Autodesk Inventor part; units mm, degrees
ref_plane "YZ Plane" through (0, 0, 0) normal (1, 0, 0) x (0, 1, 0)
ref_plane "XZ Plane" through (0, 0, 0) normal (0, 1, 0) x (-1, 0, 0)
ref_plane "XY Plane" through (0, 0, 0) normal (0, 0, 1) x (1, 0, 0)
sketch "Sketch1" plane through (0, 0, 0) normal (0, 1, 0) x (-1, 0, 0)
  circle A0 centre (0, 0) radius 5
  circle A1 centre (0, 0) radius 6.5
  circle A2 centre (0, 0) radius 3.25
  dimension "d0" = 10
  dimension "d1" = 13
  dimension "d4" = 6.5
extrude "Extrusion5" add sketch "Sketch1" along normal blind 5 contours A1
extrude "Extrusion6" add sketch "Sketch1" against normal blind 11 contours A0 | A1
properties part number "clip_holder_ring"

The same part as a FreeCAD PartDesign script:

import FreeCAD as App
import Part
import Sketcher
from FreeCAD import Vector
Q = App.Units.Quantity

doc = App.newDocument("Part")
params = doc.addObject("Spreadsheet::Sheet", "Params")
for row, (alias, value) in enumerate([
    ("sketch1_diameter", "13 mm"),
    ("sketch1_diameter2", "10 mm"),
    ("pad1_length", "5 mm"),
    ("sketch2_diameter", "13 mm"),
    ("sketch2_diameter2", "6.5 mm"),
    ("pad2_length", "11 mm"),
], start=1):
    params.set(f"A{row}", alias)
    params.set(f"B{row}", "=" + value)
    params.setAlias(f"B{row}", alias)

body = doc.addObject("PartDesign::Body", "Body")

# Sketch on XZ plane
sketch1 = body.newObject("Sketcher::SketchObject", "Sketch")
sketch1.AttachmentSupport = (doc.getObject("XZ_Plane"), [""])
sketch1.MapMode = "FlatFace"
sketch1.addGeometry([
    Part.Circle(Vector(0, 0, 0), Vector(0, 0, 1), 6.5),
    Part.Circle(Vector(0, 0, 0), Vector(0, 0, 1), 5),
], False)
sketch1.addConstraint([
    Sketcher.Constraint("Coincident", 0, 3, -1, 1),
    Sketcher.Constraint("Coincident", 1, 3, -1, 1),
    Sketcher.Constraint("Diameter", 0, Q("13 mm")),
    Sketcher.Constraint("Diameter", 1, Q("10 mm")),
])
sketch1.setExpression("Constraints[2]", "Params.sketch1_diameter")
sketch1.setExpression("Constraints[3]", "Params.sketch1_diameter2")
pad1 = body.newObject("PartDesign::Pad", "Pad")
pad1.Profile = sketch1
pad1.setExpression("Length", "Params.pad1_length")
pad1.Reversed = True

# Sketch on XZ plane
sketch2 = body.newObject("Sketcher::SketchObject", "Sketch001")
sketch2.AttachmentSupport = (doc.getObject("XZ_Plane"), [""])
sketch2.MapMode = "FlatFace"
sketch2.addGeometry([
    Part.Circle(Vector(0, 0, 0), Vector(0, 0, 1), 6.5),
    Part.Circle(Vector(0, 0, 0), Vector(0, 0, 1), 3.25),
], False)
sketch2.addConstraint([
    Sketcher.Constraint("Coincident", 0, 3, -1, 1),
    Sketcher.Constraint("Coincident", 1, 3, -1, 1),
    Sketcher.Constraint("Diameter", 0, Q("13 mm")),
    Sketcher.Constraint("Diameter", 1, Q("6.5 mm")),
])
sketch2.setExpression("Constraints[2]", "Params.sketch2_diameter")
sketch2.setExpression("Constraints[3]", "Params.sketch2_diameter2")
pad2 = body.newObject("PartDesign::Pad", "Pad001")
pad2.Profile = sketch2
pad2.setExpression("Length", "Params.pad2_length")

doc.recompute()
